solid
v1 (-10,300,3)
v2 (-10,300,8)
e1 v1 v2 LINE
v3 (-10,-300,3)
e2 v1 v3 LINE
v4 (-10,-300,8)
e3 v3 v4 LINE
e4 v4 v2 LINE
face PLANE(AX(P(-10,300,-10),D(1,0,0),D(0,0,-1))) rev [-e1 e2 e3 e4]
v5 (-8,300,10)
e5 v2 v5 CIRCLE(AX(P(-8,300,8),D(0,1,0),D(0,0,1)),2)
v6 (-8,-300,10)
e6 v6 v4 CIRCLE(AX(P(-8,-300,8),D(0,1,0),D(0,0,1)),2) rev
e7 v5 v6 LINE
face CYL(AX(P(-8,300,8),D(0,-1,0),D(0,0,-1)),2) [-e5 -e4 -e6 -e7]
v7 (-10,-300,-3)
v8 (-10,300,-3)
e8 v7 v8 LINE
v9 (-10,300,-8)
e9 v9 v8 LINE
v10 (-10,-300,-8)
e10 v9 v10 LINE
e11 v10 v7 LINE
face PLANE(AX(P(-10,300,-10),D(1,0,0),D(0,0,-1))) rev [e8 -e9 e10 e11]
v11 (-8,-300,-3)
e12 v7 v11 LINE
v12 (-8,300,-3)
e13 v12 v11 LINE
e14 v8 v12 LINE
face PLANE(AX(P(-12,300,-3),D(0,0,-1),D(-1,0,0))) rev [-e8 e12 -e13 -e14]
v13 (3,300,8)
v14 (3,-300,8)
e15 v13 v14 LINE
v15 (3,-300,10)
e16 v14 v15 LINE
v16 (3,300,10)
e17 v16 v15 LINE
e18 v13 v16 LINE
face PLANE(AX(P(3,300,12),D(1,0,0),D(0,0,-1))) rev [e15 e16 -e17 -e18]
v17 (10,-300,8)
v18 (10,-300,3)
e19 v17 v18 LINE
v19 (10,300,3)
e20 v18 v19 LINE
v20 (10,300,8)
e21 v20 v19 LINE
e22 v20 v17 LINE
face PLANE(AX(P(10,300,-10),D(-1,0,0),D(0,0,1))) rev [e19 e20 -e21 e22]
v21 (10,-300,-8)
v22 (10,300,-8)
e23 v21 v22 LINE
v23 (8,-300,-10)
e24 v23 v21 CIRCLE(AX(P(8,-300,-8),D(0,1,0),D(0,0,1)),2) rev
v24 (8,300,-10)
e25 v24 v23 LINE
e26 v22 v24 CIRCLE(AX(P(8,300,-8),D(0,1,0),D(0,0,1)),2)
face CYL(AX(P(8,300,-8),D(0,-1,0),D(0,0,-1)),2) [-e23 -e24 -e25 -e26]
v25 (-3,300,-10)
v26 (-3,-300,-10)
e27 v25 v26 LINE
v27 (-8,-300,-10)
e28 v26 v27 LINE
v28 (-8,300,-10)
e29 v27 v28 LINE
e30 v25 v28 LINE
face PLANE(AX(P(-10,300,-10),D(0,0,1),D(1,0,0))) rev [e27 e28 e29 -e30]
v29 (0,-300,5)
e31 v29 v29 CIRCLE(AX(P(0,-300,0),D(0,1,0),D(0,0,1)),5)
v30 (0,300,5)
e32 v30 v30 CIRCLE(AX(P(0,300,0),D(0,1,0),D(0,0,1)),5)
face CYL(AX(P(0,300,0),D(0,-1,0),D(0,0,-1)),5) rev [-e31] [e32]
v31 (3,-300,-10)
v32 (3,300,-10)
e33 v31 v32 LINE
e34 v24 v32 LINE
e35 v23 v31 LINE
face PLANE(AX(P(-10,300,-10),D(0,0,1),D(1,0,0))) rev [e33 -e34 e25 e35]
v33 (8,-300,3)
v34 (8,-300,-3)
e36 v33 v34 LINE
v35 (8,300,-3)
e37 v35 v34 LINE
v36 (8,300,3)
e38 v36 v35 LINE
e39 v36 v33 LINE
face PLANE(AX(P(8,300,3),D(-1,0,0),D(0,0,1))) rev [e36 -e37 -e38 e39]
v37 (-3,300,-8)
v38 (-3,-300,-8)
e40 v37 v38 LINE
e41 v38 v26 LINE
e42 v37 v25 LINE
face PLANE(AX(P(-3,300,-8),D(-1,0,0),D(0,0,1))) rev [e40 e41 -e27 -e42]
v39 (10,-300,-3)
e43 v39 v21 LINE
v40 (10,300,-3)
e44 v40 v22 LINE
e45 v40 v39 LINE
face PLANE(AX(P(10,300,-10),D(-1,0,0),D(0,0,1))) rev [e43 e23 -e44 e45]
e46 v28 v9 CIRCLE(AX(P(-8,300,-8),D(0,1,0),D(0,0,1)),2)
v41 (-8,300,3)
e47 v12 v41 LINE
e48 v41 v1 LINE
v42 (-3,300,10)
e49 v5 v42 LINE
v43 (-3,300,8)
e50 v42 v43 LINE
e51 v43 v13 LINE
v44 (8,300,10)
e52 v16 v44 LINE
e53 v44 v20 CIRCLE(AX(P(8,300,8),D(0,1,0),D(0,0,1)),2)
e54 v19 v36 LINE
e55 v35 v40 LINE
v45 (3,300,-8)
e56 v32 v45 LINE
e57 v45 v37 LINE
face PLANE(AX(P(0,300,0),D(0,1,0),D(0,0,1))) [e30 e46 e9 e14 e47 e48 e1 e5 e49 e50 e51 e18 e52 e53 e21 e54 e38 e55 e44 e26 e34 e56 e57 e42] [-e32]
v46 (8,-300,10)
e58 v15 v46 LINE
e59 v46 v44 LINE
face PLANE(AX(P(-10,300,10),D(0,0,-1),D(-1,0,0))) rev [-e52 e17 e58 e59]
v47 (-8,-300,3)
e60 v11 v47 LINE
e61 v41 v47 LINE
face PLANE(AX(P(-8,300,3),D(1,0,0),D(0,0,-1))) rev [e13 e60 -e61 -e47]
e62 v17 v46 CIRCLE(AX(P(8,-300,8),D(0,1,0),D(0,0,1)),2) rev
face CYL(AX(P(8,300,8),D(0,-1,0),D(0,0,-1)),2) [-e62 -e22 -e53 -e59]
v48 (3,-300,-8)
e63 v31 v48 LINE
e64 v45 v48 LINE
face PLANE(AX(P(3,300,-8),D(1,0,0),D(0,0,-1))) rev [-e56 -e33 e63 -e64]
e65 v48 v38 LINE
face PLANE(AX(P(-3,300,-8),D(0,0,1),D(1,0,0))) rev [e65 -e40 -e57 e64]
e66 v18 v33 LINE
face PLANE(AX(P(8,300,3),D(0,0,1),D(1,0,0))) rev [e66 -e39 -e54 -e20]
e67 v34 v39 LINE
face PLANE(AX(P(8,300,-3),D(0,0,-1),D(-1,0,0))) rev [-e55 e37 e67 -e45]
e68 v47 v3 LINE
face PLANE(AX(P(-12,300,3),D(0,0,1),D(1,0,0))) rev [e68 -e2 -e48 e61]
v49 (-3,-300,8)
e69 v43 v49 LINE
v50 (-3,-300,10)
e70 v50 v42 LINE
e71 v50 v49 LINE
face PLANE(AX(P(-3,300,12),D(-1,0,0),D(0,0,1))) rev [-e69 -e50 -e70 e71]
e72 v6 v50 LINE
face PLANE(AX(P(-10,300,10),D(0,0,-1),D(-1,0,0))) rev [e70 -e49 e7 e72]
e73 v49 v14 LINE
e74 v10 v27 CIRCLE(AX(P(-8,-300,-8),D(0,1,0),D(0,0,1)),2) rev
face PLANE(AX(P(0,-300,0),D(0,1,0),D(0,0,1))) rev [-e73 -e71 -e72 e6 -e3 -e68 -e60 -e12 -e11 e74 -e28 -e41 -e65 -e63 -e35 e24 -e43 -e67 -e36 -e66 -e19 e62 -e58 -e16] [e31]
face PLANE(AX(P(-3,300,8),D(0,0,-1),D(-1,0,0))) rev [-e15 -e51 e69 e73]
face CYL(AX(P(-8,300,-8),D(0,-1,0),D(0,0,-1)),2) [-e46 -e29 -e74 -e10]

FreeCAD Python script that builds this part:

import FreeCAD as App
import Part
import Sketcher
from FreeCAD import Vector


def edges_at(feature, points):
    """Names of the edges that pass closest to the given points."""
    edges = feature.Shape.Edges
    near = lambda p: min(range(len(edges)), key=lambda i: edges[i].distToShape(Part.Vertex(*p))[0])
    return sorted({f"Edge{near(p) + 1}" for p in points})

doc = App.newDocument("Part")
body = doc.addObject("PartDesign::Body", "Body")

# Sketch on XZ plane
sketch1 = body.newObject("Sketcher::SketchObject", "Sketch")
sketch1.AttachmentSupport = (doc.getObject("XZ_Plane"), [""])
sketch1.MapMode = "FlatFace"
sketch1.addGeometry([
    Part.LineSegment(Vector(-10, -10, 0), Vector(-10, 10, 0)),  # 0
    Part.LineSegment(Vector(-10, 10, 0), Vector(10, 10, 0)),  # 1
    Part.LineSegment(Vector(10, 10, 0), Vector(10, -10, 0)),  # 2
    Part.LineSegment(Vector(10, -10, 0), Vector(-10, -10, 0)),  # 3
    Part.Circle(Vector(0, 0, 0), Vector(0, 0, 1), 5),  # 4
], False)
sketch1.addConstraint([
    Sketcher.Constraint("Coincident", 0, 2, 1, 1),
    Sketcher.Constraint("Coincident", 1, 2, 2, 1),
    Sketcher.Constraint("Coincident", 2, 2, 3, 1),
    Sketcher.Constraint("Coincident", 3, 2, 0, 1),
    Sketcher.Constraint("Vertical", 0),
    Sketcher.Constraint("Horizontal", 1),
    Sketcher.Constraint("Vertical", 2),
    Sketcher.Constraint("Horizontal", 3),
    Sketcher.Constraint("Coincident", 4, 3, -1, 1),
    Sketcher.Constraint("Symmetric", 0, 2, 2, 2, -1, 1),
    Sketcher.Constraint("Equal", 3, 0),
    Sketcher.Constraint("Diameter", 4, 10.0),
    Sketcher.Constraint("DistanceX", 1, 1, 1, 2, 20.0),
])
pad1 = body.newObject("PartDesign::Pad", "Pad")
pad1.Profile = sketch1
pad1.Length = 600
pad1.Midplane = True

# Sketch on XZ plane
sketch2 = body.newObject("Sketcher::SketchObject", "Sketch001")
sketch2.AttachmentSupport = (doc.getObject("XZ_Plane"), [""])
sketch2.MapMode = "FlatFace"
sketch2.AttachmentOffset = App.Placement(Vector(0, 0, 300), App.Rotation())
sketch2.addGeometry([
    Part.LineSegment(Vector(-3, 12, 0), Vector(-3, 8, 0)),  # 0
    Part.LineSegment(Vector(-3, 8, 0), Vector(3, 8, 0)),  # 1
    Part.LineSegment(Vector(3, 8, 0), Vector(3, 12, 0)),  # 2
    Part.LineSegment(Vector(3, 12, 0), Vector(-3, 12, 0)),  # 3
    Part.LineSegment(Vector(8, 3, 0), Vector(8, -3, 0)),  # 4
    Part.LineSegment(Vector(8, -3, 0), Vector(12, -3, 0)),  # 5
    Part.LineSegment(Vector(12, -3, 0), Vector(12, 3, 0)),  # 6
    Part.LineSegment(Vector(12, 3, 0), Vector(8, 3, 0)),  # 7
    Part.LineSegment(Vector(-3, -8, 0), Vector(-3, -12, 0)),  # 8
    Part.LineSegment(Vector(-3, -12, 0), Vector(3, -12, 0)),  # 9
    Part.LineSegment(Vector(3, -12, 0), Vector(3, -8, 0)),  # 10
    Part.LineSegment(Vector(3, -8, 0), Vector(-3, -8, 0)),  # 11
    Part.LineSegment(Vector(-12, 3, 0), Vector(-12, -3, 0)),  # 12
    Part.LineSegment(Vector(-12, -3, 0), Vector(-8, -3, 0)),  # 13
    Part.LineSegment(Vector(-8, -3, 0), Vector(-8, 3, 0)),  # 14
    Part.LineSegment(Vector(-8, 3, 0), Vector(-12, 3, 0)),  # 15
], False)
sketch2.addConstraint([
    Sketcher.Constraint("Coincident", 0, 2, 1, 1),
    Sketcher.Constraint("Coincident", 1, 2, 2, 1),
    Sketcher.Constraint("Coincident", 2, 2, 3, 1),
    Sketcher.Constraint("Coincident", 3, 2, 0, 1),
    Sketcher.Constraint("Coincident", 4, 2, 5, 1),
    Sketcher.Constraint("Coincident", 5, 2, 6, 1),
    Sketcher.Constraint("Coincident", 6, 2, 7, 1),
    Sketcher.Constraint("Coincident", 7, 2, 4, 1),
    Sketcher.Constraint("Coincident", 8, 2, 9, 1),
    Sketcher.Constraint("Coincident", 9, 2, 10, 1),
    Sketcher.Constraint("Coincident", 10, 2, 11, 1),
    Sketcher.Constraint("Coincident", 11, 2, 8, 1),
    Sketcher.Constraint("Coincident", 12, 2, 13, 1),
    Sketcher.Constraint("Coincident", 13, 2, 14, 1),
    Sketcher.Constraint("Coincident", 14, 2, 15, 1),
    Sketcher.Constraint("Coincident", 15, 2, 12, 1),
    Sketcher.Constraint("Vertical", 0),
    Sketcher.Constraint("Horizontal", 1),
    Sketcher.Constraint("Vertical", 2),
    Sketcher.Constraint("Horizontal", 3),
    Sketcher.Constraint("Vertical", 4),
    Sketcher.Constraint("Horizontal", 5),
    Sketcher.Constraint("Vertical", 6),
    Sketcher.Constraint("Horizontal", 7),
    Sketcher.Constraint("Vertical", 8),
    Sketcher.Constraint("Horizontal", 9),
    Sketcher.Constraint("Vertical", 10),
    Sketcher.Constraint("Horizontal", 11),
    Sketcher.Constraint("Vertical", 12),
    Sketcher.Constraint("Horizontal", 13),
    Sketcher.Constraint("Vertical", 14),
    Sketcher.Constraint("Horizontal", 15),
    Sketcher.Constraint("Symmetric", 2, 2, 8, 2, -1, 1),
    Sketcher.Constraint("Symmetric", 0, 2, 10, 2, -1, 1),
    Sketcher.Constraint("Symmetric", 6, 2, 12, 2, -1, 1),
    Sketcher.Constraint("Symmetric", 4, 2, 14, 2, -1, 1),
    Sketcher.Constraint("Horizontal", 5, 2, 12, 2),
    Sketcher.Constraint("Vertical", 3, 2, 8, 2),
    Sketcher.Constraint("Equal", 15, 0),
    Sketcher.Constraint("Equal", 11, 4),
    Sketcher.Constraint("DistanceX", 1, 1, 1, 2, 6.0),
    Sketcher.Constraint("DistanceX", 5, 1, 5, 2, 4.0),
    Sketcher.Constraint("DistanceY", -1, 1, 0, 2, 8.0),
    Sketcher.Constraint("DistanceX", -1, 1, 4, 2, 8.0),
])
pocket1 = body.newObject("PartDesign::Pocket", "Pocket")
pocket1.Profile = sketch2
pocket1.Length = 600
doc.recompute()

fillet = body.newObject("PartDesign::Fillet", "Fillet")
fillet.Base = (pocket1, edges_at(pocket1, [
    (10, 0, 10),
    (-10, 0, 10),
    (-10, 0, -10),
    (10, 0, -10),
]))
fillet.Radius = 2

doc.recompute()
